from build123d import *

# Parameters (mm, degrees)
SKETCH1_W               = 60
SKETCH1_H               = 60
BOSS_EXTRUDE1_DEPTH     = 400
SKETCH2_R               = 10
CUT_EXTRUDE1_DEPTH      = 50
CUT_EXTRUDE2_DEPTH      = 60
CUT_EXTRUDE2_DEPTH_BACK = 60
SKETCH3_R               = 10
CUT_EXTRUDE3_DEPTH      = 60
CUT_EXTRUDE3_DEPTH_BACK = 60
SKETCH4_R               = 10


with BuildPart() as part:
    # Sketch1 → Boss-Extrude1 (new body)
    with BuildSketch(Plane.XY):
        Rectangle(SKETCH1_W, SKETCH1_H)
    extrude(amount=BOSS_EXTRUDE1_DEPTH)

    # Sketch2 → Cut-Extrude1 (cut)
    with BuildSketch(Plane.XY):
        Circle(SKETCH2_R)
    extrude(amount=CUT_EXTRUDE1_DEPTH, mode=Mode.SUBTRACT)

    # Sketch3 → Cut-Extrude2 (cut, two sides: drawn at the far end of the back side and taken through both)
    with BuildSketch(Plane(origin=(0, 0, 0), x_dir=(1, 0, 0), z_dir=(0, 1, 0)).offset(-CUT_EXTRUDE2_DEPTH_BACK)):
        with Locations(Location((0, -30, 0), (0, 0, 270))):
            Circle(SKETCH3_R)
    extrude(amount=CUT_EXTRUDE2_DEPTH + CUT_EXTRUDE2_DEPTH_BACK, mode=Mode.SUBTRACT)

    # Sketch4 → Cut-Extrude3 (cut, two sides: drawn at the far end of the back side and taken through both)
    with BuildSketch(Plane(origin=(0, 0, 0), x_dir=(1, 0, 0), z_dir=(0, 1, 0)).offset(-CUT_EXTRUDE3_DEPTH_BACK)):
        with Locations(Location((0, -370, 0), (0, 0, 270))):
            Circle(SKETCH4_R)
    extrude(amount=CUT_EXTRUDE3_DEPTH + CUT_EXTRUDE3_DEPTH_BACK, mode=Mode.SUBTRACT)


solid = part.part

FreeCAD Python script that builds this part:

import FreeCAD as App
import Part
import Sketcher

V = App.Vector

doc = App.newDocument("Part")
body = doc.addObject("PartDesign::Body", "Body")

# Sketch on XY plane
sketch1 = doc.addObject("Sketcher::SketchObject", "Sketch")
body.addObject(sketch1)
sketch1.AttachmentSupport = (doc.XY_Plane, [""])
sketch1.MapMode = "FlatFace"
sketch1.addGeometry([
    Part.LineSegment(V(-30, 30, 0), V(-30, -30, 0)),
    Part.LineSegment(V(-30, -30, 0), V(30, -30, 0)),
    Part.LineSegment(V(30, -30, 0), V(30, 30, 0)),
    Part.LineSegment(V(30, 30, 0), V(-30, 30, 0)),
], False)
sketch1.addConstraint([
    Sketcher.Constraint("Coincident", 0, 2, 1, 1),
    Sketcher.Constraint("Coincident", 1, 2, 2, 1),
    Sketcher.Constraint("Coincident", 2, 2, 3, 1),
    Sketcher.Constraint("Coincident", 3, 2, 0, 1),
    Sketcher.Constraint("Vertical", 0),
    Sketcher.Constraint("Horizontal", 1),
    Sketcher.Constraint("Vertical", 2),
    Sketcher.Constraint("Horizontal", 3),
    Sketcher.Constraint("Symmetric", 0, 2, 2, 2, -1, 1),
    Sketcher.Constraint("Equal", 3, 0),
    Sketcher.Constraint("DistanceX", 1, 1, 1, 2, 60.0),
])
pad1 = doc.addObject("PartDesign::Pad", "Pad")
body.addObject(pad1)
pad1.Profile = sketch1
pad1.Length = 400

# Sketch on XY plane
sketch2 = doc.addObject("Sketcher::SketchObject", "Sketch001")
body.addObject(sketch2)
sketch2.AttachmentSupport = (doc.XY_Plane, [""])
sketch2.MapMode = "FlatFace"
sketch2.addGeometry(Part.Circle(V(0, 0, 0), V(0, 0, 1), 10), False)
sketch2.addConstraint([
    Sketcher.Constraint("Coincident", 0, 3, -1, 1),
    Sketcher.Constraint("Diameter", 0, 20.0),
])
pocket1 = doc.addObject("PartDesign::Pocket", "Pocket")
body.addObject(pocket1)
pocket1.Profile = sketch2
pocket1.Length = 50
pocket1.Reversed = True

# Sketch on XZ plane
sketch3 = doc.addObject("Sketcher::SketchObject", "Sketch002")
body.addObject(sketch3)
sketch3.AttachmentSupport = (doc.XZ_Plane, [""])
sketch3.MapMode = "FlatFace"
sketch3.addGeometry(Part.Circle(V(0, 30, 0), V(0, 0, 1), 10), False)
sketch3.addConstraint([
    Sketcher.Constraint("PointOnObject", 0, 3, -2),
    Sketcher.Constraint("Diameter", 0, 20.0),
    Sketcher.Constraint("DistanceY", -1, 1, 0, 3, 30.0),
])
pocket2 = doc.addObject("PartDesign::Pocket", "Pocket001")
body.addObject(pocket2)
pocket2.Profile = sketch3
pocket2.Type = "ThroughAll"
pocket2.Midplane = True

# Sketch on XZ plane
sketch4 = doc.addObject("Sketcher::SketchObject", "Sketch003")
body.addObject(sketch4)
sketch4.AttachmentSupport = (doc.XZ_Plane, [""])
sketch4.MapMode = "FlatFace"
sketch4.addGeometry(Part.Circle(V(0, 370, 0), V(0, 0, 1), 10), False)
sketch4.addConstraint([
    Sketcher.Constraint("PointOnObject", 0, 3, -2),
    Sketcher.Constraint("Diameter", 0, 20.0),
    Sketcher.Constraint("DistanceY", -1, 1, 0, 3, 370.0),
])
pocket3 = doc.addObject("PartDesign::Pocket", "Pocket002")
body.addObject(pocket3)
pocket3.Profile = sketch4
pocket3.Type = "ThroughAll"
pocket3.Midplane = True

doc.recompute()
